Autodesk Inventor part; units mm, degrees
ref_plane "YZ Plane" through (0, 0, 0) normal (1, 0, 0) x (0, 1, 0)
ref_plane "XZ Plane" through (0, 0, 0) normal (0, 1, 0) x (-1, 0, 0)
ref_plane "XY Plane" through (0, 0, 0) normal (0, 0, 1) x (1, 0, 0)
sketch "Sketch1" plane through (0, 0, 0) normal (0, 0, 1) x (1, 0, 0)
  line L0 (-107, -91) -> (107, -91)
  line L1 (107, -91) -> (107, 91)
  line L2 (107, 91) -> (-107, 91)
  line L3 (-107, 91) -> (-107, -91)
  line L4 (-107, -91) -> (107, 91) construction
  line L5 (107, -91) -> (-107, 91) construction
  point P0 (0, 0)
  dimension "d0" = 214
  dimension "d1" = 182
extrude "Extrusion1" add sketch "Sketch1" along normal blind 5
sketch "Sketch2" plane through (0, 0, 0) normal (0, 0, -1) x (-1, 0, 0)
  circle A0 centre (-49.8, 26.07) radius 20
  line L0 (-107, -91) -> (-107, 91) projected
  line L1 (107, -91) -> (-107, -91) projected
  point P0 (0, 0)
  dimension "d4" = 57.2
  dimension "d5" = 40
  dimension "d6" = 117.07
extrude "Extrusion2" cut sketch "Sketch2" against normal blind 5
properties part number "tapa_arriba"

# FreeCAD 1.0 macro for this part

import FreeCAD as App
import Part
import Sketcher

V = App.Vector
Q = App.Units.Quantity


def add_polygon(sketch, points):
    """Adds a closed chain of lines whose ends are joined by coincident constraints."""
    first, n = sketch.GeometryCount, len(points)
    for a, b in zip(points, points[1:] + points[:1]):
        sketch.addGeometry(Part.LineSegment(App.Vector(*a, 0), App.Vector(*b, 0)), False)
    for i in range(n):
        sketch.addConstraint(Sketcher.Constraint("Coincident", first + i, 2, first + (i + 1) % n, 1))

doc = App.newDocument("Part")
body = doc.addObject("PartDesign::Body", "Body")

# Sketch on XY plane
sketch1 = body.newObject("Sketcher::SketchObject", "Sketch")
sketch1.AttachmentSupport = (doc.getObject("XY_Plane"), [""])
sketch1.MapMode = "FlatFace"
add_polygon(sketch1, [(-107, 91), (-107, -91), (107, -91), (107, 91)])  # lines 0-3
sketch1.addConstraint([
    Sketcher.Constraint("Vertical", 0),
    Sketcher.Constraint("Horizontal", 1),
    Sketcher.Constraint("Vertical", 2),
    Sketcher.Constraint("Horizontal", 3),
    Sketcher.Constraint("Symmetric", 0, 2, 2, 2, -1, 1),
    Sketcher.Constraint("DistanceX", 1, 1, 1, 2, Q("214 mm")),
    Sketcher.Constraint("DistanceY", 0, 2, 0, 1, Q("182 mm")),
])
pad1 = body.newObject("PartDesign::Pad", "Pad")
pad1.Profile = sketch1
pad1.Length = 5

# Sketch on XY plane
sketch2 = body.newObject("Sketcher::SketchObject", "Sketch001")
sketch2.AttachmentSupport = (doc.getObject("XY_Plane"), [""])
sketch2.MapMode = "FlatFace"
sketch2.addGeometry(Part.Circle(V(49.8, 26.07, 0), V(0, 0, 1), 20), False)
sketch2.addConstraint([
    Sketcher.Constraint("Diameter", 0, Q("40 mm")),
    Sketcher.Constraint("DistanceX", -1, 1, 0, 3, Q("49.8 mm")),
    Sketcher.Constraint("DistanceY", -1, 1, 0, 3, Q("26.07 mm")),
])
pocket1 = body.newObject("PartDesign::Pocket", "Pocket")
pocket1.Profile = sketch2
pocket1.Length = 5
pocket1.Reversed = True

doc.recompute()
